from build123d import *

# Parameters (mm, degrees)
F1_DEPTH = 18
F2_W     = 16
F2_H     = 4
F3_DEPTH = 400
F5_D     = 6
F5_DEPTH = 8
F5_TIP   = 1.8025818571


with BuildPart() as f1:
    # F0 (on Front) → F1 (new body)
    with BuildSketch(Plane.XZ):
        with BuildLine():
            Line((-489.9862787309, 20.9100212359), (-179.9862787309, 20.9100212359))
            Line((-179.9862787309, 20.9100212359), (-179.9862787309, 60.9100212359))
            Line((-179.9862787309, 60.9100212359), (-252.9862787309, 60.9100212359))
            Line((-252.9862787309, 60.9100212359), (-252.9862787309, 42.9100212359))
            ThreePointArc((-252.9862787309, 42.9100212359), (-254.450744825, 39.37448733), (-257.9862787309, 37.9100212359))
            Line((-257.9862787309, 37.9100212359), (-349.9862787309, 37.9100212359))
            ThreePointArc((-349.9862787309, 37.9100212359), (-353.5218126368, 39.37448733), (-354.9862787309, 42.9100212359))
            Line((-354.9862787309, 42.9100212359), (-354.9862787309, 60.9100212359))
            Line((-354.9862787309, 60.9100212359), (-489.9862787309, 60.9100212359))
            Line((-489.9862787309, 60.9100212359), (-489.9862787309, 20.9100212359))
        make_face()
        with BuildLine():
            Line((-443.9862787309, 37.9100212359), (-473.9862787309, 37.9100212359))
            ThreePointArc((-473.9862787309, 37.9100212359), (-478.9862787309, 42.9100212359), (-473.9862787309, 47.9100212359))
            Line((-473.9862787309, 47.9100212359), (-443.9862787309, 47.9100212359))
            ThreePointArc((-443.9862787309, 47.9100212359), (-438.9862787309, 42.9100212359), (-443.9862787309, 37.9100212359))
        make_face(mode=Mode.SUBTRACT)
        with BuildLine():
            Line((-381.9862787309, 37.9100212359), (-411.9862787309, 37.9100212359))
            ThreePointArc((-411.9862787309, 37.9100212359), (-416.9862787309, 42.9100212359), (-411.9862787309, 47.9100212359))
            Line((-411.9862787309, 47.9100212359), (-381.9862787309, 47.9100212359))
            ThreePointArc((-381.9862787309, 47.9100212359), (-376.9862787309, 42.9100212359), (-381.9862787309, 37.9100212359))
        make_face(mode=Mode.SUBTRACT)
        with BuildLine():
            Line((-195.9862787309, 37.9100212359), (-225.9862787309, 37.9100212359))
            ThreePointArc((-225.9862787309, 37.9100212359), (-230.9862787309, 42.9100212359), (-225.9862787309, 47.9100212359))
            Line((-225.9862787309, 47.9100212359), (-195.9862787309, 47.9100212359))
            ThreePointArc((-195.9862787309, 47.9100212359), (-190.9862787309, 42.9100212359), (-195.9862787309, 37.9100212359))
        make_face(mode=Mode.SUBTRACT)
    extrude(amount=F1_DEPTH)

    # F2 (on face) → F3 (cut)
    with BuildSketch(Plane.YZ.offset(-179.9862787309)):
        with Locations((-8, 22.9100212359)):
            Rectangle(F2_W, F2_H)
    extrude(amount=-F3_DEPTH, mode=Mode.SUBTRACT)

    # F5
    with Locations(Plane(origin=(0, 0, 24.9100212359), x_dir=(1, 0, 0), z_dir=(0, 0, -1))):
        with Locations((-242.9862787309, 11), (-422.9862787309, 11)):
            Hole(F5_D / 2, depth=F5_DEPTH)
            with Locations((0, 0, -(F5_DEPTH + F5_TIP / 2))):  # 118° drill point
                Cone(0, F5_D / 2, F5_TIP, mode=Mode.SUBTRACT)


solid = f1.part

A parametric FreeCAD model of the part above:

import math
import FreeCAD as App
import Part
import Sketcher

V = App.Vector


def add_polygon(sketch, points):
    """Adds a closed chain of lines whose ends are joined by coincident constraints."""
    first, n = sketch.GeometryCount, len(points)
    for a, b in zip(points, points[1:] + points[:1]):
        sketch.addGeometry(Part.LineSegment(App.Vector(*a, 0), App.Vector(*b, 0)), False)
    for i in range(n):
        sketch.addConstraint(Sketcher.Constraint("Coincident", first + i, 2, first + (i + 1) % n, 1))

doc = App.newDocument("Part")
body = doc.addObject("PartDesign::Body", "Body")

# Sketch on XZ plane
sketch1 = body.newObject("Sketcher::SketchObject", "Sketch")
sketch1.AttachmentSupport = (doc.getObject("XZ_Plane"), [""])
sketch1.MapMode = "FlatFace"
sketch1.addGeometry([
    Part.LineSegment(V(-490, 21, 0), V(-180, 21, 0)),  # 0
    Part.LineSegment(V(-180, 21, 0), V(-180, 61, 0)),  # 1
    Part.LineSegment(V(-180, 61, 0), V(-253, 61, 0)),  # 2
    Part.LineSegment(V(-253, 61, 0), V(-253, 43, 0)),  # 3
    Part.ArcOfCircle(Part.Circle(V(-258, 43, 0), V(0, 0, 1), 5), math.radians(-90), math.radians(0)),  # 4
    Part.LineSegment(V(-258, 38, 0), V(-350, 38, 0)),  # 5
    Part.ArcOfCircle(Part.Circle(V(-350, 43, 0), V(0, 0, 1), 5), math.radians(180), math.radians(270)),  # 6
    Part.LineSegment(V(-355, 43, 0), V(-355, 61, 0)),  # 7
    Part.LineSegment(V(-355, 61, 0), V(-490, 61, 0)),  # 8
    Part.LineSegment(V(-490, 61, 0), V(-490, 21, 0)),  # 9
    Part.ArcOfCircle(Part.Circle(V(-444, 43, 0), V(0, 0, 1), 5), math.radians(-90), math.radians(90)),  # 10
    Part.LineSegment(V(-444, 38, 0), V(-474, 38, 0)),  # 11
    Part.ArcOfCircle(Part.Circle(V(-474, 43, 0), V(0, 0, 1), 5), math.radians(90), math.radians(270)),  # 12
    Part.LineSegment(V(-474, 48, 0), V(-444, 48, 0)),  # 13
    Part.ArcOfCircle(Part.Circle(V(-382, 43, 0), V(0, 0, 1), 5), math.radians(-90), math.radians(90)),  # 14
    Part.LineSegment(V(-382, 38, 0), V(-412, 38, 0)),  # 15
    Part.ArcOfCircle(Part.Circle(V(-412, 43, 0), V(0, 0, 1), 5), math.radians(90), math.radians(270)),  # 16
    Part.LineSegment(V(-412, 48, 0), V(-382, 48, 0)),  # 17
    Part.ArcOfCircle(Part.Circle(V(-196, 43, 0), V(0, 0, 1), 5), math.radians(-90), math.radians(90)),  # 18
    Part.LineSegment(V(-196, 38, 0), V(-226, 38, 0)),  # 19
    Part.ArcOfCircle(Part.Circle(V(-226, 43, 0), V(0, 0, 1), 5), math.radians(90), math.radians(270)),  # 20
    Part.LineSegment(V(-226, 48, 0), V(-196, 48, 0)),  # 21
], False)
sketch1.addConstraint([
    Sketcher.Constraint("Coincident", 0, 2, 1, 1),
    Sketcher.Constraint("Coincident", 1, 2, 2, 1),
    Sketcher.Constraint("Coincident", 2, 2, 3, 1),
    Sketcher.Constraint("Tangent", 3, 2, 4, 2),
    Sketcher.Constraint("Tangent", 4, 1, 5, 1),
    Sketcher.Constraint("Tangent", 5, 2, 6, 2),
    Sketcher.Constraint("Tangent", 6, 1, 7, 1),
    Sketcher.Constraint("Coincident", 7, 2, 8, 1),
    Sketcher.Constraint("Coincident", 8, 2, 9, 1),
    Sketcher.Constraint("Coincident", 9, 2, 0, 1),
    Sketcher.Constraint("Tangent", 10, 1, 11, 1),
    Sketcher.Constraint("Tangent", 11, 2, 12, 2),
    Sketcher.Constraint("Tangent", 12, 1, 13, 1),
    Sketcher.Constraint("Tangent", 13, 2, 10, 2),
    Sketcher.Constraint("Tangent", 14, 1, 15, 1),
    Sketcher.Constraint("Tangent", 15, 2, 16, 2),
    Sketcher.Constraint("Tangent", 16, 1, 17, 1),
    Sketcher.Constraint("Tangent", 17, 2, 14, 2),
    Sketcher.Constraint("Tangent", 18, 1, 19, 1),
    Sketcher.Constraint("Tangent", 19, 2, 20, 2),
    Sketcher.Constraint("Tangent", 20, 1, 21, 1),
    Sketcher.Constraint("Tangent", 21, 2, 18, 2),
    Sketcher.Constraint("Horizontal", 0),
    Sketcher.Constraint("Vertical", 1),
    Sketcher.Constraint("Horizontal", 2),
    Sketcher.Constraint("Vertical", 3),
    Sketcher.Constraint("Horizontal", 5),
    Sketcher.Constraint("Vertical", 7),
    Sketcher.Constraint("Horizontal", 8),
    Sketcher.Constraint("Vertical", 9),
    Sketcher.Constraint("Horizontal", 11),
    Sketcher.Constraint("Horizontal", 13),
    Sketcher.Constraint("Horizontal", 15),
    Sketcher.Constraint("Horizontal", 17),
    Sketcher.Constraint("Horizontal", 19),
    Sketcher.Constraint("Horizontal", 21),
    Sketcher.Constraint("Equal", 4, 6),
    Sketcher.Constraint("Equal", 6, 10),
    Sketcher.Constraint("Equal", 12, 14),
    Sketcher.Constraint("Equal", 16, 18),
    Sketcher.Constraint("Horizontal", 6, 3, 10, 3),
    Sketcher.Constraint("Horizontal", 12, 3, 14, 3),
    Sketcher.Constraint("Horizontal", 16, 3, 18, 3),
    Sketcher.Constraint("Horizontal", 2, 2, 7, 2),
    Sketcher.Constraint("Equal", 13, 15),
    Sketcher.Constraint("Equal", 17, 19),
    Sketcher.Constraint("Radius", 4, 5.0),
    Sketcher.Constraint("DistanceX", 0, 1, 0, 2, 310.0),
    Sketcher.Constraint("DistanceX", 2, 2, 2, 1, 73.0),
    Sketcher.Constraint("DistanceX", 5, 2, 5, 1, 92.0),
    Sketcher.Constraint("DistanceX", 11, 2, 11, 1, 30.0),
    Sketcher.Constraint("DistanceY", 1, 1, 1, 2, 40.0),
    Sketcher.Constraint("DistanceY", 3, 2, 3, 1, 18.0),
    Sketcher.Constraint("DistanceX", 10, 3, 6, 3, 94.0),
    Sketcher.Constraint("DistanceX", 14, 3, 6, 3, 32.0),
    Sketcher.Constraint("DistanceX", 4, 3, 18, 3, 62.0),
    Sketcher.Constraint("DistanceX", 4, 3, -1, 1, 257.986279),
    Sketcher.Constraint("DistanceY", -1, 1, 4, 3, 42.910021),
])
pad1 = body.newObject("PartDesign::Pad", "Pad")
pad1.Profile = sketch1
pad1.Length = 18

# Sketch on YZ plane
sketch2 = body.newObject("Sketcher::SketchObject", "Sketch001")
sketch2.AttachmentSupport = (doc.getObject("YZ_Plane"), [""])
sketch2.MapMode = "FlatFace"
sketch2.AttachmentOffset = App.Placement(V(0, 0, -179.986279), App.Rotation())
add_polygon(sketch2, [(-16, 24.9), (-16, 20.9), (0, 20.9), (0, 24.9)])  # lines 0-3
sketch2.addConstraint([
    Sketcher.Constraint("Vertical", 0),
    Sketcher.Constraint("Horizontal", 1),
    Sketcher.Constraint("Vertical", 2),
    Sketcher.Constraint("Horizontal", 3),
    Sketcher.Constraint("PointOnObject", 1, 2, -2),
    Sketcher.Constraint("DistanceX", 1, 1, 1, 2, 16.0),
    Sketcher.Constraint("DistanceY", 0, 2, 0, 1, 4.0),
    Sketcher.Constraint("DistanceY", -1, 1, 0, 2, 20.910021),
])
pocket1 = body.newObject("PartDesign::Pocket", "Pocket")
pocket1.Profile = sketch2
pocket1.Length = 400

# Sketch on XY plane
sketch3 = body.newObject("Sketcher::SketchObject", "Sketch002")
sketch3.AttachmentSupport = (doc.getObject("XY_Plane"), [""])
sketch3.MapMode = "FlatFace"
sketch3.AttachmentOffset = App.Placement(V(0, 0, 24.910021), App.Rotation())
sketch3.addGeometry([
    Part.Circle(V(-243, -11, 0), V(0, 0, 1), 3),
    Part.Circle(V(-423, -11, 0), V(0, 0, 1), 3),
], False)
sketch3.addConstraint([
    Sketcher.Constraint("Equal", 0, 1),
    Sketcher.Constraint("Horizontal", 0, 3, 1, 3),
    Sketcher.Constraint("Diameter", 0, 6.0),
    Sketcher.Constraint("DistanceY", 0, 3, -1, 1, 11.0),
    Sketcher.Constraint("DistanceX", 1, 3, 0, 3, 180.0),
    Sketcher.Constraint("DistanceX", 0, 3, -1, 1, 242.986279),
])
doc.recompute()
hole = body.newObject("PartDesign::Hole", "Hole")
hole.Profile = sketch3
hole.ThreadType = "None"
hole.Diameter = 6
hole.DepthType = "Dimension"
hole.Depth = 8
hole.DrillPoint = "Angled"
hole.DrillPointAngle = 118
hole.Reversed = True

doc.recompute()
